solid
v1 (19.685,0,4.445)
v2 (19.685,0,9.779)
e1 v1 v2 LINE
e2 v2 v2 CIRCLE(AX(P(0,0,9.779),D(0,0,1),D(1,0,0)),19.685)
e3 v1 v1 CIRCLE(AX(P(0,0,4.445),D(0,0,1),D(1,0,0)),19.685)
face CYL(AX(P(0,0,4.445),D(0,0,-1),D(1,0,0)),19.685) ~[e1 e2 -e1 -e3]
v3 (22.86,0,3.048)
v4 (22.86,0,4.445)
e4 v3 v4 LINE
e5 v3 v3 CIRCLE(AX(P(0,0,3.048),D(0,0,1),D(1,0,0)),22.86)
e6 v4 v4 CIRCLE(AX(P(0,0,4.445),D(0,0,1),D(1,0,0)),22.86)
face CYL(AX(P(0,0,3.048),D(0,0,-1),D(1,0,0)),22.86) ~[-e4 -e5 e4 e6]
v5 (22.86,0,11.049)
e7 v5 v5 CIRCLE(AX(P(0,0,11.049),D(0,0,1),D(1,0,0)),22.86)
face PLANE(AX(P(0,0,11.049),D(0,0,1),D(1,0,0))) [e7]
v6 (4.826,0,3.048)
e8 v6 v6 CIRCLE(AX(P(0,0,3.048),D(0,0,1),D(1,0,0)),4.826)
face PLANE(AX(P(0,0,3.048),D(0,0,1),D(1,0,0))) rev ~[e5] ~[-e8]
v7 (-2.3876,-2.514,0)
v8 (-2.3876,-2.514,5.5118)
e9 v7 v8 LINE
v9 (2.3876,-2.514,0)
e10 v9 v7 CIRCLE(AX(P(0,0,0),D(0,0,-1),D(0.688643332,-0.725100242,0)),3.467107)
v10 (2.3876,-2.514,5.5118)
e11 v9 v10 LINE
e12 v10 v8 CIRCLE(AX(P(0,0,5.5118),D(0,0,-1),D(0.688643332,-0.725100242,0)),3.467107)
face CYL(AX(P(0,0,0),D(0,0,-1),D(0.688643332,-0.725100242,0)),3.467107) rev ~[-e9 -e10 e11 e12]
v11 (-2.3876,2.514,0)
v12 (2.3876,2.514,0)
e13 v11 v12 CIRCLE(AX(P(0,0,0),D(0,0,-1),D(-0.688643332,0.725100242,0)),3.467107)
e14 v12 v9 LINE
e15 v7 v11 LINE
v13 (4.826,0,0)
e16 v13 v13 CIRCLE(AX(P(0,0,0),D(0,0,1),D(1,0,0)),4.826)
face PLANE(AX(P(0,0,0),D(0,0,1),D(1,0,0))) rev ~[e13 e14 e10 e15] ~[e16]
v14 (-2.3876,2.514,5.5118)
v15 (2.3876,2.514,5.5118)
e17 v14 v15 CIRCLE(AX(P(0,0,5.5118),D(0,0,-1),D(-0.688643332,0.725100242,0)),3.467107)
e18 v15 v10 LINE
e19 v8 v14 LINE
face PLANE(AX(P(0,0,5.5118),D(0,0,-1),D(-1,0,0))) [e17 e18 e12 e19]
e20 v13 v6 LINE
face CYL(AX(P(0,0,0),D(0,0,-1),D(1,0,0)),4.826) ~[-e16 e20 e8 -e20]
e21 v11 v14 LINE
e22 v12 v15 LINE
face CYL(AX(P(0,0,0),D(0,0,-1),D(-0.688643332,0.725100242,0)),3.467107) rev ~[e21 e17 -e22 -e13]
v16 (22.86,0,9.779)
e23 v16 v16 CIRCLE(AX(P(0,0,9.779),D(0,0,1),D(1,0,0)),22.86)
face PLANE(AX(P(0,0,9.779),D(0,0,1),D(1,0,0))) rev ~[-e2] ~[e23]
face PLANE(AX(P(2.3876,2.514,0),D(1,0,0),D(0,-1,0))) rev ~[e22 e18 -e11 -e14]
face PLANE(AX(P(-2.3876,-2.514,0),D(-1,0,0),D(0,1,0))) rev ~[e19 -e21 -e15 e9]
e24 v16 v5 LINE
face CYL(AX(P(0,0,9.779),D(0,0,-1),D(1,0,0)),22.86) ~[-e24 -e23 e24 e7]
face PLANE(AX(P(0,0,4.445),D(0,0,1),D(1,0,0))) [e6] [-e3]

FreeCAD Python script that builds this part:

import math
import FreeCAD as App
import Part
import Sketcher
Q = App.Units.Quantity

doc = App.newDocument("Part")
params = doc.addObject("Spreadsheet::Sheet", "Params")
for row, (alias, value) in enumerate([
    ("sketch1_diameter", "0.38 in"),
    ("pad1_length", "0.12 in"),
    ("sketch2_diameter", "1.8 in"),
    ("pad2_length", "0.055 in"),
    ("sketch3_diameter", "1.55 in"),
    ("pad3_length", "0.21 in"),
    ("sketch4_diameter", "1.8 in"),
    ("pad4_length", "0.05 in"),
    ("pocket1_length", "0.217 in"),
], start=1):
    params.set(f"A{row}", alias)
    params.set(f"B{row}", "=" + value)
    params.setAlias(f"B{row}", alias)

body = doc.addObject("PartDesign::Body", "Body")

sketch1 = doc.addObject("Sketcher::SketchObject", "Sketch")
body.addObject(sketch1)
sketch1.AttachmentSupport = (doc.XY_Plane, [""])
sketch1.MapMode = "FlatFace"
sketch1.addGeometry(Part.Circle(App.Vector(0, 0, 0), App.Vector(0, 0, 1), 4.8), False)
sketch1.addConstraint(Sketcher.Constraint("Coincident", 0, 3, -1, 1))
sketch1.addConstraint(Sketcher.Constraint("Diameter", 0, Q("0.38 in")))
sketch1.setExpression("Constraints[1]", "Params.sketch1_diameter")
pad1 = doc.addObject("PartDesign::Pad", "Pad")
body.addObject(pad1)
pad1.Profile = sketch1
pad1.setExpression("Length", "Params.pad1_length")

sketch2 = doc.addObject("Sketcher::SketchObject", "Sketch001")
body.addObject(sketch2)
sketch2.AttachmentSupport = (doc.XY_Plane, [""])
sketch2.MapMode = "FlatFace"
sketch2.AttachmentOffset = App.Placement(App.Vector(0, 0, 0.12 * 25.4), App.Rotation())
sketch2.addGeometry(Part.Circle(App.Vector(0, 0, 0), App.Vector(0, 0, 1), 23), False)
sketch2.addConstraint(Sketcher.Constraint("Coincident", 0, 3, -1, 1))
sketch2.addConstraint(Sketcher.Constraint("Diameter", 0, Q("1.8 in")))
sketch2.setExpression("Constraints[1]", "Params.sketch2_diameter")
pad2 = doc.addObject("PartDesign::Pad", "Pad001")
body.addObject(pad2)
pad2.Profile = sketch2
pad2.setExpression("Length", "Params.pad2_length")

sketch3 = doc.addObject("Sketcher::SketchObject", "Sketch002")
body.addObject(sketch3)
sketch3.AttachmentSupport = (doc.XY_Plane, [""])
sketch3.MapMode = "FlatFace"
sketch3.AttachmentOffset = App.Placement(App.Vector(0, 0, 0.175 * 25.4), App.Rotation())
sketch3.addGeometry(Part.Circle(App.Vector(0, 0, 0), App.Vector(0, 0, 1), 20), False)
sketch3.addConstraint(Sketcher.Constraint("Coincident", 0, 3, -1, 1))
sketch3.addConstraint(Sketcher.Constraint("Diameter", 0, Q("1.55 in")))
sketch3.setExpression("Constraints[1]", "Params.sketch3_diameter")
pad3 = doc.addObject("PartDesign::Pad", "Pad002")
body.addObject(pad3)
pad3.Profile = sketch3
pad3.setExpression("Length", "Params.pad3_length")

sketch4 = doc.addObject("Sketcher::SketchObject", "Sketch003")
body.addObject(sketch4)
sketch4.AttachmentSupport = (doc.XY_Plane, [""])
sketch4.MapMode = "FlatFace"
sketch4.AttachmentOffset = App.Placement(App.Vector(0, 0, 0.385 * 25.4), App.Rotation())
sketch4.addGeometry(Part.Circle(App.Vector(0, 0, 0), App.Vector(0, 0, 1), 23), False)
sketch4.addConstraint(Sketcher.Constraint("Coincident", 0, 3, -1, 1))
sketch4.addConstraint(Sketcher.Constraint("Diameter", 0, Q("1.8 in")))
sketch4.setExpression("Constraints[1]", "Params.sketch4_diameter")
pad4 = doc.addObject("PartDesign::Pad", "Pad003")
body.addObject(pad4)
pad4.Profile = sketch4
pad4.setExpression("Length", "Params.pad4_length")

sketch5 = doc.addObject("Sketcher::SketchObject", "Sketch004")
body.addObject(sketch5)
sketch5.AttachmentSupport = (doc.XY_Plane, [""])
sketch5.MapMode = "FlatFace"
sketch5.addGeometry(Part.ArcOfCircle(Part.Circle(App.Vector(0, 0, 0), App.Vector(0, 0, 1), 3.5), math.radians(-134), math.radians(-46)), False)
sketch5.addGeometry(Part.LineSegment(App.Vector(-2.4, -2.5, 0), App.Vector(-2.4, 2.5, 0)), False)
sketch5.addGeometry(Part.ArcOfCircle(Part.Circle(App.Vector(0, 0, 0), App.Vector(0, 0, 1), 3.5), math.radians(46), math.radians(134)), False)
sketch5.addGeometry(Part.LineSegment(App.Vector(2.4, 2.5, 0), App.Vector(2.4, -2.5, 0)), False)
sketch5.addConstraint(Sketcher.Constraint("Coincident", 0, 1, 1, 1))
sketch5.addConstraint(Sketcher.Constraint("Coincident", 1, 2, 2, 2))
sketch5.addConstraint(Sketcher.Constraint("Coincident", 2, 1, 3, 1))
sketch5.addConstraint(Sketcher.Constraint("Coincident", 3, 2, 0, 2))
sketch5.addConstraint(Sketcher.Constraint("Vertical", 1))
sketch5.addConstraint(Sketcher.Constraint("Vertical", 3))
sketch5.addConstraint(Sketcher.Constraint("Coincident", 0, 3, -1, 1))
sketch5.addConstraint(Sketcher.Constraint("Coincident", 2, 3, -1, 1))
sketch5.addConstraint(Sketcher.Constraint("Equal", 0, 2))
sketch5.addConstraint(Sketcher.Constraint("Horizontal", 1, 2, 2, 1))
sketch5.addConstraint(Sketcher.Constraint("Radius", 0, Q("0.1365 in")))
sketch5.addConstraint(Sketcher.Constraint("DistanceX", 0, 1, -1, 1, Q("0.094 in")))
pocket1 = doc.addObject("PartDesign::Pocket", "Pocket")
body.addObject(pocket1)
pocket1.Profile = sketch5
pocket1.setExpression("Length", "Params.pocket1_length")
pocket1.Reversed = True

doc.recompute()
